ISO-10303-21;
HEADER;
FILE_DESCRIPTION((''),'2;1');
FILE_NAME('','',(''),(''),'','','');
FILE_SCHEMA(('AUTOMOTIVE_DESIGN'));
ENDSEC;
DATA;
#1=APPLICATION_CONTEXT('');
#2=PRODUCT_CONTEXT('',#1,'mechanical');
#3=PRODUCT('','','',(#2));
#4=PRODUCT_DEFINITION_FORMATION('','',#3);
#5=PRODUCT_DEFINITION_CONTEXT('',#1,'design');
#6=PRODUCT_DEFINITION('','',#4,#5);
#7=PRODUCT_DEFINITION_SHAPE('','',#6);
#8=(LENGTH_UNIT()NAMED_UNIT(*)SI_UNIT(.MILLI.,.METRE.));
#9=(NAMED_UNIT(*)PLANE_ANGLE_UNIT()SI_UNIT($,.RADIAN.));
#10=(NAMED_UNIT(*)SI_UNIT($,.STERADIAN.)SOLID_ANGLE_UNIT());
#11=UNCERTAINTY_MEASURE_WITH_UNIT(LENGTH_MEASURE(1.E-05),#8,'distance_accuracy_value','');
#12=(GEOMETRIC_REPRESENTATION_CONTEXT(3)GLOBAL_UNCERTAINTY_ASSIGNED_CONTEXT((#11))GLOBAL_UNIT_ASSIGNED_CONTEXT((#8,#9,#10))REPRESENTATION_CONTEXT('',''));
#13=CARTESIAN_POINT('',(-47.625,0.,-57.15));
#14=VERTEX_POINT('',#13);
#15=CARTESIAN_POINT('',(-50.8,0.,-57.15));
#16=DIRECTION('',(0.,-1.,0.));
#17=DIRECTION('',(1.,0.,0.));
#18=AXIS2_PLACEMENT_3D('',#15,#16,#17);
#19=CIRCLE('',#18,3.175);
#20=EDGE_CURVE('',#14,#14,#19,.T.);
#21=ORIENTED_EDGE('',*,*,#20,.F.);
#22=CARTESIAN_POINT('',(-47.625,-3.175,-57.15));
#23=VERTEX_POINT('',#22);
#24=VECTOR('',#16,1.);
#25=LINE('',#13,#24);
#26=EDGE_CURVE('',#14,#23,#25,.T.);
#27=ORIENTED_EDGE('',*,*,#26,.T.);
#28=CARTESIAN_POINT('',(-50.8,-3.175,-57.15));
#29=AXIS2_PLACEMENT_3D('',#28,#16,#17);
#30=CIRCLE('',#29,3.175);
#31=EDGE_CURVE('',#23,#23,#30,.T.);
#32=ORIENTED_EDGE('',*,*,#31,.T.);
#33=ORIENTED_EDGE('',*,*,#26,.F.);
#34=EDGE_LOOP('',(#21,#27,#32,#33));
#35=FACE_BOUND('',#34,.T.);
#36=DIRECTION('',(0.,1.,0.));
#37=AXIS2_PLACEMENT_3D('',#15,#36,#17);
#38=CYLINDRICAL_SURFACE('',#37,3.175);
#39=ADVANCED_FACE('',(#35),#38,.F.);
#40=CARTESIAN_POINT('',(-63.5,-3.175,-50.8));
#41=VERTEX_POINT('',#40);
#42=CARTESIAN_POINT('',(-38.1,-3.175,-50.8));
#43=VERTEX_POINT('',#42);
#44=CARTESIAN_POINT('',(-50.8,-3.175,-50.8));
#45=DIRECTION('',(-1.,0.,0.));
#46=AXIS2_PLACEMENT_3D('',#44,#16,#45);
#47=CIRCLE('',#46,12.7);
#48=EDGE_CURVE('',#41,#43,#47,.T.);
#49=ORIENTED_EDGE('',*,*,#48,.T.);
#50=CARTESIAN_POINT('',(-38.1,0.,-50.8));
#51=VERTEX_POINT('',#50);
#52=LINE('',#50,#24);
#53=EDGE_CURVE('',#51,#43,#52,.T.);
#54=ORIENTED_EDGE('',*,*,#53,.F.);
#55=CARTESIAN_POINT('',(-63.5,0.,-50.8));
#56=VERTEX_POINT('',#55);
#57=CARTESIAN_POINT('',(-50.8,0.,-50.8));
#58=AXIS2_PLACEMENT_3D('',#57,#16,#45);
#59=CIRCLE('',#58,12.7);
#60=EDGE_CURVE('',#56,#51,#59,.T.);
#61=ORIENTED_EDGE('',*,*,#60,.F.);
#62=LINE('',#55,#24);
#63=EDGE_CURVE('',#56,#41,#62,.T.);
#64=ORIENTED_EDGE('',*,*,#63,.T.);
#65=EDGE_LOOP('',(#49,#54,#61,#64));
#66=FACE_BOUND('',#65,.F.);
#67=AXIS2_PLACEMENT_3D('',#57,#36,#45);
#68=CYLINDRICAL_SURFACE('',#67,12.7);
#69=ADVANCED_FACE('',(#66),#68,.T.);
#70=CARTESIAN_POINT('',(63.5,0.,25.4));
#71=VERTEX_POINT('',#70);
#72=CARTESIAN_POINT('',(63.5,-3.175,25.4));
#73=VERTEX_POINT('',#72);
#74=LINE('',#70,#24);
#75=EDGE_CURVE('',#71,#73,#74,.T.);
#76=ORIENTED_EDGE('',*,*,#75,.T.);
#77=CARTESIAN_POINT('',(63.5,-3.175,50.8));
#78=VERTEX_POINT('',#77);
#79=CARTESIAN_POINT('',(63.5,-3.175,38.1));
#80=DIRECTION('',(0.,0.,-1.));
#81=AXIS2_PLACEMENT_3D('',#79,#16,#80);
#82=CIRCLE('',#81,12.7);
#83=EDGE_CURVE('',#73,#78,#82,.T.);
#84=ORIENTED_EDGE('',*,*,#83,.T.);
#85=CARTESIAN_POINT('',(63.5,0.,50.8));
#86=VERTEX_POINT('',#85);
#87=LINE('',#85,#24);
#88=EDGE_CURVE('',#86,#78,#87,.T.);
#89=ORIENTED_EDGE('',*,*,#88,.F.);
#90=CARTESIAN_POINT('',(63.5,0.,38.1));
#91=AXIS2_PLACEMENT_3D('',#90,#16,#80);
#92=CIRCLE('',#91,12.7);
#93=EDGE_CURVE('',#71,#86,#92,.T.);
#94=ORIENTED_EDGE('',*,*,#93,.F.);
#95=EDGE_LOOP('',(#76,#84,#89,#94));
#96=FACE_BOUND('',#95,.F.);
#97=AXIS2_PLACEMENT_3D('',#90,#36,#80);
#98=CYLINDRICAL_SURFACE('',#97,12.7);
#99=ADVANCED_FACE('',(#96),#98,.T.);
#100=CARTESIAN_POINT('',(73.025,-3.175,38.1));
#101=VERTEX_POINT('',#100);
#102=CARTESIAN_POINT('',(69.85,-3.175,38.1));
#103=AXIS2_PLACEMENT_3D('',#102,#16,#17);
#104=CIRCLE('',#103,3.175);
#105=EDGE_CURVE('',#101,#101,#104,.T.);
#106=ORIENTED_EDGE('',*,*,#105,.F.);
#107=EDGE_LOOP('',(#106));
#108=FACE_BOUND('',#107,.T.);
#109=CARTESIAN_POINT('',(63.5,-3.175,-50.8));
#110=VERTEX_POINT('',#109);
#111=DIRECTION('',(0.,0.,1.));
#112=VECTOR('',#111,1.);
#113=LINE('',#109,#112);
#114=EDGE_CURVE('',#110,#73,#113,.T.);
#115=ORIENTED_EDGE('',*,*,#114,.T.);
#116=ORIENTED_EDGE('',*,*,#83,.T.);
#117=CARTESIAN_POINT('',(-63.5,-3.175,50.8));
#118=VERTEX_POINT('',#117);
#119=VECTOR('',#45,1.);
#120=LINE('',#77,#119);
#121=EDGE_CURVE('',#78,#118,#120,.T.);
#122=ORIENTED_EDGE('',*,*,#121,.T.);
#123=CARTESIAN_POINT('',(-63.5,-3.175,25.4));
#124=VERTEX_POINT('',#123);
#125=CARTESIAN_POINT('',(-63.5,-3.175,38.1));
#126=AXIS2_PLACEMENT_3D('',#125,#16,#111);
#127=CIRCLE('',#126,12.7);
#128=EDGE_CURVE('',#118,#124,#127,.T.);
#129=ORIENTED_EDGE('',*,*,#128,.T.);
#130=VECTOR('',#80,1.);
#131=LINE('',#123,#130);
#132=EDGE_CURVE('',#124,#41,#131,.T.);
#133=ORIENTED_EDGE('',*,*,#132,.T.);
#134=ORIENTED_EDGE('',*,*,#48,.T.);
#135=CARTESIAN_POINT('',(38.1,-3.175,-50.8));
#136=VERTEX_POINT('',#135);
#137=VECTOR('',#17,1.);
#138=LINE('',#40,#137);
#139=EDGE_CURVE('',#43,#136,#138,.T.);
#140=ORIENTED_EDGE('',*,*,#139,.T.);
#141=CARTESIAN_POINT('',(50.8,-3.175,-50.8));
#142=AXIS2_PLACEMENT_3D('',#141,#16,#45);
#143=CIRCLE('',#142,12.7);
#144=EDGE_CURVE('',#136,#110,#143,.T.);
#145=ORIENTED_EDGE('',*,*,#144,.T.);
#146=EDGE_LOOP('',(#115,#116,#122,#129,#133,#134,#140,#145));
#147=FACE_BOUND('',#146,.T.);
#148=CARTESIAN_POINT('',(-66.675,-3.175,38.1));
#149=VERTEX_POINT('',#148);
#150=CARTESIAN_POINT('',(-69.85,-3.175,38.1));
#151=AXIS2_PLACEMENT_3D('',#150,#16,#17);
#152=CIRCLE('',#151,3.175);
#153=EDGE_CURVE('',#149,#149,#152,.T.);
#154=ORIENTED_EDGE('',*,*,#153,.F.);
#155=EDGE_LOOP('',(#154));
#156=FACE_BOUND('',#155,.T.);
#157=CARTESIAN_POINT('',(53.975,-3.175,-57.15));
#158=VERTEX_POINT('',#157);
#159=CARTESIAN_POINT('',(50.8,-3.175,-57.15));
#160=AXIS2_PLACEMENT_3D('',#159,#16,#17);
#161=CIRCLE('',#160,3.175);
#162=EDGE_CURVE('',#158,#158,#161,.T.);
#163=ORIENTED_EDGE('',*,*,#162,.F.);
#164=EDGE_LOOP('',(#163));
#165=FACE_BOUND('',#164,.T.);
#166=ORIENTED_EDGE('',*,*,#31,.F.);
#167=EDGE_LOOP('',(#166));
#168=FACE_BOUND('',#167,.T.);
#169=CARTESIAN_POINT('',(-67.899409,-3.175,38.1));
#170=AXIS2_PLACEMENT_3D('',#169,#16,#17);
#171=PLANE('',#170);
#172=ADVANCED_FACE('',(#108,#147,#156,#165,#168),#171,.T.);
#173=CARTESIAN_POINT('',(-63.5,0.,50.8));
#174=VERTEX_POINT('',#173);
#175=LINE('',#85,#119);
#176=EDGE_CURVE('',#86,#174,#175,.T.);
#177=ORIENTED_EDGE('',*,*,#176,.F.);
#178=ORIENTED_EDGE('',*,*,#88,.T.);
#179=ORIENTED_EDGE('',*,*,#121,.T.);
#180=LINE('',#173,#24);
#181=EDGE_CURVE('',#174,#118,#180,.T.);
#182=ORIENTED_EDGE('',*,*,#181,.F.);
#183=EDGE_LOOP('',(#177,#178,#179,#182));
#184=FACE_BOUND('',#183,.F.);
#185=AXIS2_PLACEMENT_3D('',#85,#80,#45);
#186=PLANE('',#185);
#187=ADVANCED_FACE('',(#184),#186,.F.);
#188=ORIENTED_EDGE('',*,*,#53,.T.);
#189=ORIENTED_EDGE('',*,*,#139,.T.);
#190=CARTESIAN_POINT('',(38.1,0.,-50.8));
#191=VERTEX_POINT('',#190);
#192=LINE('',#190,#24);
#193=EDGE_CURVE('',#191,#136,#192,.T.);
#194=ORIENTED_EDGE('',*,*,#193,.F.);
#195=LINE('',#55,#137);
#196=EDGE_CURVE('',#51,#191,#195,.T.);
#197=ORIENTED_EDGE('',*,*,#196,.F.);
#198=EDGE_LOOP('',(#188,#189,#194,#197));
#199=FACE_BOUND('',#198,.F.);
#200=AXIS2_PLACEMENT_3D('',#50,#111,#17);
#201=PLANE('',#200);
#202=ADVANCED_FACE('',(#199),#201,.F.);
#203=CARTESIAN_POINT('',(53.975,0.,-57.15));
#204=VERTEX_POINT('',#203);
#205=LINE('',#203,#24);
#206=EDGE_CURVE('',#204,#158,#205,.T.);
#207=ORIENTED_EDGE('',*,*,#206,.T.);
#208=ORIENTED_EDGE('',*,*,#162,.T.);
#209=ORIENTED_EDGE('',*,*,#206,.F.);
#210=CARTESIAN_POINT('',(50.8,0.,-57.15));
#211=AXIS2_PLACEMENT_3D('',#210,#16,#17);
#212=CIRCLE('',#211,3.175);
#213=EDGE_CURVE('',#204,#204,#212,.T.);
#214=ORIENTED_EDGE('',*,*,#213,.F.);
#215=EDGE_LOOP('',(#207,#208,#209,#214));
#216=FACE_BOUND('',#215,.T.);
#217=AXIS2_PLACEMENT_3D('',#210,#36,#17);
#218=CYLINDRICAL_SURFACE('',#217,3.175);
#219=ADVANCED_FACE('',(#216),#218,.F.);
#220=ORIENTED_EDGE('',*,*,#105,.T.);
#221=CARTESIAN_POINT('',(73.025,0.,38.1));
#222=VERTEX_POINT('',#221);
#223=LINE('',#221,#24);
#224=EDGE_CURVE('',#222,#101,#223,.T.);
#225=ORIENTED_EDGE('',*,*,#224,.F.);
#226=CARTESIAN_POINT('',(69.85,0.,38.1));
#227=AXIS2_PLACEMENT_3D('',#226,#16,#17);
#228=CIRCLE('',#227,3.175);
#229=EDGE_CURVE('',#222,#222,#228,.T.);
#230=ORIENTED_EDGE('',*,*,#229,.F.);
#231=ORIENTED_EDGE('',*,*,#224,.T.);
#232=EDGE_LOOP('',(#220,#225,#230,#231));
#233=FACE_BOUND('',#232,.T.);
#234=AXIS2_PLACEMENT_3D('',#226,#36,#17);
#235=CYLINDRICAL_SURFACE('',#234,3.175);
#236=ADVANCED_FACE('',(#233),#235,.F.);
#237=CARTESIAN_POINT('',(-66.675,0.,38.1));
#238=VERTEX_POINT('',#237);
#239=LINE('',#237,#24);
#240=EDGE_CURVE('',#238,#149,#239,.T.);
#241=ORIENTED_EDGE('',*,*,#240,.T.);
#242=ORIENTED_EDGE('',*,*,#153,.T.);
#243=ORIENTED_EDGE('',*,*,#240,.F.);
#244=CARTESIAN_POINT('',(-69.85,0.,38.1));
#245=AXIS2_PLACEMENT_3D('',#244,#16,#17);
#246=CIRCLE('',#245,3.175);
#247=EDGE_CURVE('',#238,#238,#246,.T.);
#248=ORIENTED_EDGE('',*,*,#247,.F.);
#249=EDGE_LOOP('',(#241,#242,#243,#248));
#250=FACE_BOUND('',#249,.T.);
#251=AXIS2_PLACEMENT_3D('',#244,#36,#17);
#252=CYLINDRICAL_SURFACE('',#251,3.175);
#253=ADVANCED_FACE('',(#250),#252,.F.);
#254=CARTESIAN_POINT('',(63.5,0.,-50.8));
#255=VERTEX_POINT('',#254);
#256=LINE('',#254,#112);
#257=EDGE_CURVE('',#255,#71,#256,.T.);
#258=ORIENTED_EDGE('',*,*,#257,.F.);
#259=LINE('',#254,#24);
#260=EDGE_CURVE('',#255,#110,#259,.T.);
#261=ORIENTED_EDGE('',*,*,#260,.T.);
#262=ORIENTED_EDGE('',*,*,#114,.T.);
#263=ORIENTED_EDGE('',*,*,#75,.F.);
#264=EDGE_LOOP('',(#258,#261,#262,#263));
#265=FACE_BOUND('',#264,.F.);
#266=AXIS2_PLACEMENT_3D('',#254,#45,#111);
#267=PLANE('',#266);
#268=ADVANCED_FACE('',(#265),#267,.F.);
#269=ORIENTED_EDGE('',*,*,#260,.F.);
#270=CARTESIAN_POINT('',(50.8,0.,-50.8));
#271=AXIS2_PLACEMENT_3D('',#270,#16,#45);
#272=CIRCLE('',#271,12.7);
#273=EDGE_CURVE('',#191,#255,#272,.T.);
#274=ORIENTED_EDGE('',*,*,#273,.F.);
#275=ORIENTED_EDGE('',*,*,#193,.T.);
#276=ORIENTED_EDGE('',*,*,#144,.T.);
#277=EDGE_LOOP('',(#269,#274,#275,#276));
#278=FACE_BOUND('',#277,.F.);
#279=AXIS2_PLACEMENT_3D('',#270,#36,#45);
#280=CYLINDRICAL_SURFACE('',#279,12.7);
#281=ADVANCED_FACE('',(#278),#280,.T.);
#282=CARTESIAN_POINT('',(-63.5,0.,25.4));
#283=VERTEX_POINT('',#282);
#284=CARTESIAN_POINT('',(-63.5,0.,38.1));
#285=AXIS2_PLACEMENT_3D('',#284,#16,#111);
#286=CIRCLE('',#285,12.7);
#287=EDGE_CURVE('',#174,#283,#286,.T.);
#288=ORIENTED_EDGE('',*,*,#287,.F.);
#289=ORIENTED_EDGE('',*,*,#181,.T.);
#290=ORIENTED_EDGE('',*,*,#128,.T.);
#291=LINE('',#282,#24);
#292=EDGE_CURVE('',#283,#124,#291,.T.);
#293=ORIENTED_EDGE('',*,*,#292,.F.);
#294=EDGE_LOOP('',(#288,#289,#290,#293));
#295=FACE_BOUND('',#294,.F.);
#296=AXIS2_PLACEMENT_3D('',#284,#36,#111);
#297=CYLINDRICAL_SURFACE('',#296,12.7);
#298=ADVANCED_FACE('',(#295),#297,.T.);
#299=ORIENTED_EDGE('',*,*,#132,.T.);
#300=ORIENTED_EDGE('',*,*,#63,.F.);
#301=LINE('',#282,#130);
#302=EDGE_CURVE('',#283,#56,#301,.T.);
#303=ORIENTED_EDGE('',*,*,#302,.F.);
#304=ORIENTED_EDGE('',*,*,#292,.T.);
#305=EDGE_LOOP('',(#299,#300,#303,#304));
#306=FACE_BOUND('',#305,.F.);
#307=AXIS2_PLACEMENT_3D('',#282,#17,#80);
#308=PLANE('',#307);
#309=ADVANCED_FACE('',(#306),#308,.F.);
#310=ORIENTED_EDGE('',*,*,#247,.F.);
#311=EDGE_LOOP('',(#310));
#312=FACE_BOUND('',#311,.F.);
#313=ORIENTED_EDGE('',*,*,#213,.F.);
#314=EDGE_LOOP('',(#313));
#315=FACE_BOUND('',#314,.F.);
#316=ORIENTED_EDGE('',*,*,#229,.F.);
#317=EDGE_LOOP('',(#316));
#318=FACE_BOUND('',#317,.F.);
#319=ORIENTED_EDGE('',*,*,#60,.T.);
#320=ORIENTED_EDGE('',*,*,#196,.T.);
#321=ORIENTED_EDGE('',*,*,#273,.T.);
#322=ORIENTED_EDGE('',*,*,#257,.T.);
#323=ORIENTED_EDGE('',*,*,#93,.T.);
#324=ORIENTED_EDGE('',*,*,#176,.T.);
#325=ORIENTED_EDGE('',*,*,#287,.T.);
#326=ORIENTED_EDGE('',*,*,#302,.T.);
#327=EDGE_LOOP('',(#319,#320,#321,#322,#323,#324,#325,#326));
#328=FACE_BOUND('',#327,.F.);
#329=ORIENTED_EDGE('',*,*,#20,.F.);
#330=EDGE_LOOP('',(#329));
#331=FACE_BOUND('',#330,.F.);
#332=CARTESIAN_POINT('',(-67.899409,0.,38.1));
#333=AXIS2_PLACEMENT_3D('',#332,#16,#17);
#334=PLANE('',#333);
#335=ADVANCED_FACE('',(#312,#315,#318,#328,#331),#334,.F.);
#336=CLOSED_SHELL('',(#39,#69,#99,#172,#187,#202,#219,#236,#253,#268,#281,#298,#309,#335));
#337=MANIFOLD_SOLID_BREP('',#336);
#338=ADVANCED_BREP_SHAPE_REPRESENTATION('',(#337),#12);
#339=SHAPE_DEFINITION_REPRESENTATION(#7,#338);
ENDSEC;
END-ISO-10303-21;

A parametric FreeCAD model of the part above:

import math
import FreeCAD as App
import Part
import Sketcher
Q = App.Units.Quantity

doc = App.newDocument("Part")
body = doc.addObject("PartDesign::Body", "Body")

sketch1 = body.newObject("Sketcher::SketchObject", "Sketch")
sketch1.AttachmentSupport = (doc.getObject("XZ_Plane"), [""])
sketch1.MapMode = "FlatFace"
sketch1.addGeometry(Part.ArcOfCircle(Part.Circle(App.Vector(-63.5, 38.1, 0), App.Vector(0, 0, 1), 12.7), math.radians(90), math.radians(270)), False)
sketch1.addGeometry(Part.LineSegment(App.Vector(-63.5, 25.4, 0), App.Vector(-63.5, -50.8, 0)), False)
sketch1.addGeometry(Part.ArcOfCircle(Part.Circle(App.Vector(-50.8, -50.8, 0), App.Vector(0, 0, 1), 12.7), math.radians(180), math.radians(360)), False)
sketch1.addGeometry(Part.LineSegment(App.Vector(-38.1, -50.8, 0), App.Vector(38.1, -50.8, 0)), False)
sketch1.addGeometry(Part.ArcOfCircle(Part.Circle(App.Vector(50.8, -50.8, 0), App.Vector(0, 0, 1), 12.7), math.radians(180), math.radians(360)), False)
sketch1.addGeometry(Part.LineSegment(App.Vector(63.5, -50.8, 0), App.Vector(63.5, 25.4, 0)), False)
sketch1.addGeometry(Part.ArcOfCircle(Part.Circle(App.Vector(63.5, 38.1, 0), App.Vector(0, 0, 1), 12.7), math.radians(-90), math.radians(90)), False)
sketch1.addGeometry(Part.LineSegment(App.Vector(63.5, 50.8, 0), App.Vector(-63.5, 50.8, 0)), False)
sketch1.addGeometry(Part.Circle(App.Vector(-50.8, -57.15, 0), App.Vector(0, 0, 1), 3.175), False)
sketch1.addGeometry(Part.Circle(App.Vector(50.8, -57.15, 0), App.Vector(0, 0, 1), 3.175), False)
sketch1.addGeometry(Part.Circle(App.Vector(-69.85, 38.1, 0), App.Vector(0, 0, 1), 3.175), False)
sketch1.addGeometry(Part.Circle(App.Vector(69.85, 38.1, 0), App.Vector(0, 0, 1), 3.175), False)
sketch1.addConstraint(Sketcher.Constraint("Coincident", 0, 2, 1, 1))
sketch1.addConstraint(Sketcher.Constraint("Tangent", 1, 2, 2, 1))
sketch1.addConstraint(Sketcher.Constraint("Coincident", 2, 2, 3, 1))
sketch1.addConstraint(Sketcher.Constraint("Coincident", 3, 2, 4, 1))
sketch1.addConstraint(Sketcher.Constraint("Tangent", 4, 2, 5, 1))
sketch1.addConstraint(Sketcher.Constraint("Coincident", 5, 2, 6, 1))
sketch1.addConstraint(Sketcher.Constraint("Tangent", 6, 2, 7, 1))
sketch1.addConstraint(Sketcher.Constraint("Tangent", 7, 2, 0, 1))
sketch1.addConstraint(Sketcher.Constraint("Vertical", 1))
sketch1.addConstraint(Sketcher.Constraint("Horizontal", 3))
sketch1.addConstraint(Sketcher.Constraint("Vertical", 5))
sketch1.addConstraint(Sketcher.Constraint("Horizontal", 7))
sketch1.addConstraint(Sketcher.Constraint("Equal", 0, 2))
sketch1.addConstraint(Sketcher.Constraint("Equal", 2, 4))
sketch1.addConstraint(Sketcher.Constraint("Equal", 4, 6))
sketch1.addConstraint(Sketcher.Constraint("Equal", 8, 9))
sketch1.addConstraint(Sketcher.Constraint("Equal", 9, 10))
sketch1.addConstraint(Sketcher.Constraint("Equal", 10, 11))
sketch1.addConstraint(Sketcher.Constraint("Symmetric", 1, 2, 6, 2, -1, 1))
sketch1.addConstraint(Sketcher.Constraint("Symmetric", 4, 2, 7, 2, -1, 1))
sketch1.addConstraint(Sketcher.Constraint("Symmetric", 8, 3, 9, 3, -2))
sketch1.addConstraint(Sketcher.Constraint("Symmetric", 10, 3, 11, 3, -2))
sketch1.addConstraint(Sketcher.Constraint("Horizontal", 6, 3, 10, 3))
sketch1.addConstraint(Sketcher.Constraint("Horizontal", 1, 2, 2, 2))
sketch1.addConstraint(Sketcher.Constraint("Vertical", 2, 3, 8, 3))
sketch1.addConstraint(Sketcher.Constraint("Vertical", 4, 3, 9, 3))
sketch1.addConstraint(Sketcher.Constraint("Equal", 3, 1))
sketch1.addConstraint(Sketcher.Constraint("Radius", 0, Q("0.5 in")))
sketch1.addConstraint(Sketcher.Constraint("Diameter", 8, Q("0.25 in")))
sketch1.addConstraint(Sketcher.Constraint("DistanceX", 3, 1, 3, 2, Q("3 in")))
sketch1.addConstraint(Sketcher.Constraint("DistanceX", 10, 3, 11, 3, Q("5.5 in")))
sketch1.addConstraint(Sketcher.Constraint("DistanceY", 8, 3, -1, 1, Q("2.25 in")))
pad1 = body.newObject("PartDesign::Pad", "Pad")
pad1.Profile = sketch1
pad1.Length = Q("0.125 in")

doc.recompute()
